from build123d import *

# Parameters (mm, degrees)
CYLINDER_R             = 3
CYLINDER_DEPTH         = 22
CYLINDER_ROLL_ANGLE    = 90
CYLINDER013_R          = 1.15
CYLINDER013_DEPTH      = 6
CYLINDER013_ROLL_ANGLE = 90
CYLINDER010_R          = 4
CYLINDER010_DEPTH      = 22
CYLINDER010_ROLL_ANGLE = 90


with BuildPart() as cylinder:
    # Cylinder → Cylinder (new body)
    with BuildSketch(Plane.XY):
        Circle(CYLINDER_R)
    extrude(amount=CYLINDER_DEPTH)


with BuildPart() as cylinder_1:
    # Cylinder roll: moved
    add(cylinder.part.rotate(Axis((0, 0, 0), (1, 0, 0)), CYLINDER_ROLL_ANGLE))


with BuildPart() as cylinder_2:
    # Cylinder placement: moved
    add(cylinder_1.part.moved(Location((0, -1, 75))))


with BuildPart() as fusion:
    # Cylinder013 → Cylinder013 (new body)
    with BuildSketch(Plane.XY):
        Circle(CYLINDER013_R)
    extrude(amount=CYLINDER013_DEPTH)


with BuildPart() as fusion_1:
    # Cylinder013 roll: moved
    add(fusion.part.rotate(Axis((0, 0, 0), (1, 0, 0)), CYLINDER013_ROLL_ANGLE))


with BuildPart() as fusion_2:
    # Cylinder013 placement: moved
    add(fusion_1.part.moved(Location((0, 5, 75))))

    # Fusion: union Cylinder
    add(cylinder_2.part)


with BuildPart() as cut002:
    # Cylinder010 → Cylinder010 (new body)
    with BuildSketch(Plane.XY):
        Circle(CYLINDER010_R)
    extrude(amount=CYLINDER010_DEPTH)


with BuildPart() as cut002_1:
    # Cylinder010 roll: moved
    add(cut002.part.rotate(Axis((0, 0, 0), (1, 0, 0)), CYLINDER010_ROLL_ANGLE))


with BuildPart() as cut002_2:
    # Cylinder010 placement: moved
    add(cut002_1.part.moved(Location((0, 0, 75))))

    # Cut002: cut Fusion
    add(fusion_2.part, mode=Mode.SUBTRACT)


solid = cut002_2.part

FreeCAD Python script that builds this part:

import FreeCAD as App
import Part
import Sketcher
Q = App.Units.Quantity

doc = App.newDocument("Part")
params = doc.addObject("Spreadsheet::Sheet", "Params")
for row, (alias, value) in enumerate([
    ("sketch1_diameter", "6 mm"),
    ("pad1_length", "22 mm"),
    ("sketch2_diameter", "2.3 mm"),
    ("pad2_length", "6 mm"),
    ("sketch3_diameter", "8 mm"),
    ("pad3_length", "22 mm"),
], start=1):
    params.set(f"A{row}", alias)
    params.set(f"B{row}", "=" + value)
    params.setAlias(f"B{row}", alias)

body = doc.addObject("PartDesign::Body", "Body")

# Sketch on XY plane
sketch1 = body.newObject("Sketcher::SketchObject", "Sketch")
sketch1.AttachmentSupport = (doc.getObject("XY_Plane"), [""])
sketch1.MapMode = "FlatFace"
sketch1.addGeometry(Part.Circle(App.Vector(0, 0, 0), App.Vector(0, 0, 1), 3), False)
sketch1.addConstraint(Sketcher.Constraint("Coincident", 0, 3, -1, 1))
sketch1.addConstraint(Sketcher.Constraint("Diameter", 0, Q("6 mm")))
sketch1.setExpression("Constraints[1]", "Params.sketch1_diameter")
pad1 = body.newObject("PartDesign::Pad", "Pad")
pad1.Profile = sketch1
pad1.setExpression("Length", "Params.pad1_length")
body2 = doc.addObject("PartDesign::Body", "Body001")
doc.recompute()

body.Placement = App.Placement(App.Vector(0, 0, 0), App.Rotation(App.Vector(1, 0, 0), 90))
boolean = body2.newObject("PartDesign::Boolean", "Boolean")
boolean.Type = "Fuse"
boolean.addObjects([body])
body3 = doc.addObject("PartDesign::Body", "Body002")
doc.recompute()

body2.Placement = App.Placement(App.Vector(0, -1, 75), App.Rotation(App.Vector(0, 0, 1), 0))
boolean2 = body3.newObject("PartDesign::Boolean", "Boolean001")
boolean2.Type = "Fuse"
boolean2.addObjects([body2])
body4 = doc.addObject("PartDesign::Body", "Body003")

# Sketch on XY plane
sketch2 = body4.newObject("Sketcher::SketchObject", "Sketch001")
sketch2.AttachmentSupport = (doc.getObject("XY_Plane003"), [""])
sketch2.MapMode = "FlatFace"
sketch2.addGeometry(Part.Circle(App.Vector(0, 0, 0), App.Vector(0, 0, 1), 1.15), False)
sketch2.addConstraint(Sketcher.Constraint("Coincident", 0, 3, -1, 1))
sketch2.addConstraint(Sketcher.Constraint("Diameter", 0, Q("2.3 mm")))
sketch2.setExpression("Constraints[1]", "Params.sketch2_diameter")
pad2 = body4.newObject("PartDesign::Pad", "Pad001")
pad2.Profile = sketch2
pad2.setExpression("Length", "Params.pad2_length")
body5 = doc.addObject("PartDesign::Body", "Body004")
doc.recompute()

body4.Placement = App.Placement(App.Vector(0, 0, 0), App.Rotation(App.Vector(1, 0, 0), 90))
boolean3 = body5.newObject("PartDesign::Boolean", "Boolean002")
boolean3.Type = "Fuse"
boolean3.addObjects([body4])
body6 = doc.addObject("PartDesign::Body", "Body005")
doc.recompute()

body5.Placement = App.Placement(App.Vector(0, 5, 75), App.Rotation(App.Vector(0, 0, 1), 0))
boolean4 = body6.newObject("PartDesign::Boolean", "Boolean003")
boolean4.Type = "Fuse"
boolean4.addObjects([body5])
doc.recompute()

boolean5 = body6.newObject("PartDesign::Boolean", "Boolean004")
boolean5.Type = "Fuse"
boolean5.addObjects([body3])
body7 = doc.addObject("PartDesign::Body", "Body006")

# Sketch on XY plane
sketch3 = body7.newObject("Sketcher::SketchObject", "Sketch002")
sketch3.AttachmentSupport = (doc.getObject("XY_Plane006"), [""])
sketch3.MapMode = "FlatFace"
sketch3.addGeometry(Part.Circle(App.Vector(0, 0, 0), App.Vector(0, 0, 1), 4), False)
sketch3.addConstraint(Sketcher.Constraint("Coincident", 0, 3, -1, 1))
sketch3.addConstraint(Sketcher.Constraint("Diameter", 0, Q("8 mm")))
sketch3.setExpression("Constraints[1]", "Params.sketch3_diameter")
pad3 = body7.newObject("PartDesign::Pad", "Pad002")
pad3.Profile = sketch3
pad3.setExpression("Length", "Params.pad3_length")
body8 = doc.addObject("PartDesign::Body", "Body007")
doc.recompute()

body7.Placement = App.Placement(App.Vector(0, 0, 0), App.Rotation(App.Vector(1, 0, 0), 90))
boolean6 = body8.newObject("PartDesign::Boolean", "Boolean005")
boolean6.Type = "Fuse"
boolean6.addObjects([body7])
body9 = doc.addObject("PartDesign::Body", "Body008")
doc.recompute()

body8.Placement = App.Placement(App.Vector(0, 0, 75), App.Rotation(App.Vector(0, 0, 1), 0))
boolean7 = body9.newObject("PartDesign::Boolean", "Boolean006")
boolean7.Type = "Fuse"
boolean7.addObjects([body8])
doc.recompute()

boolean8 = body9.newObject("PartDesign::Boolean", "Boolean007")
boolean8.Type = "Cut"
boolean8.addObjects([body6])

doc.recompute()
